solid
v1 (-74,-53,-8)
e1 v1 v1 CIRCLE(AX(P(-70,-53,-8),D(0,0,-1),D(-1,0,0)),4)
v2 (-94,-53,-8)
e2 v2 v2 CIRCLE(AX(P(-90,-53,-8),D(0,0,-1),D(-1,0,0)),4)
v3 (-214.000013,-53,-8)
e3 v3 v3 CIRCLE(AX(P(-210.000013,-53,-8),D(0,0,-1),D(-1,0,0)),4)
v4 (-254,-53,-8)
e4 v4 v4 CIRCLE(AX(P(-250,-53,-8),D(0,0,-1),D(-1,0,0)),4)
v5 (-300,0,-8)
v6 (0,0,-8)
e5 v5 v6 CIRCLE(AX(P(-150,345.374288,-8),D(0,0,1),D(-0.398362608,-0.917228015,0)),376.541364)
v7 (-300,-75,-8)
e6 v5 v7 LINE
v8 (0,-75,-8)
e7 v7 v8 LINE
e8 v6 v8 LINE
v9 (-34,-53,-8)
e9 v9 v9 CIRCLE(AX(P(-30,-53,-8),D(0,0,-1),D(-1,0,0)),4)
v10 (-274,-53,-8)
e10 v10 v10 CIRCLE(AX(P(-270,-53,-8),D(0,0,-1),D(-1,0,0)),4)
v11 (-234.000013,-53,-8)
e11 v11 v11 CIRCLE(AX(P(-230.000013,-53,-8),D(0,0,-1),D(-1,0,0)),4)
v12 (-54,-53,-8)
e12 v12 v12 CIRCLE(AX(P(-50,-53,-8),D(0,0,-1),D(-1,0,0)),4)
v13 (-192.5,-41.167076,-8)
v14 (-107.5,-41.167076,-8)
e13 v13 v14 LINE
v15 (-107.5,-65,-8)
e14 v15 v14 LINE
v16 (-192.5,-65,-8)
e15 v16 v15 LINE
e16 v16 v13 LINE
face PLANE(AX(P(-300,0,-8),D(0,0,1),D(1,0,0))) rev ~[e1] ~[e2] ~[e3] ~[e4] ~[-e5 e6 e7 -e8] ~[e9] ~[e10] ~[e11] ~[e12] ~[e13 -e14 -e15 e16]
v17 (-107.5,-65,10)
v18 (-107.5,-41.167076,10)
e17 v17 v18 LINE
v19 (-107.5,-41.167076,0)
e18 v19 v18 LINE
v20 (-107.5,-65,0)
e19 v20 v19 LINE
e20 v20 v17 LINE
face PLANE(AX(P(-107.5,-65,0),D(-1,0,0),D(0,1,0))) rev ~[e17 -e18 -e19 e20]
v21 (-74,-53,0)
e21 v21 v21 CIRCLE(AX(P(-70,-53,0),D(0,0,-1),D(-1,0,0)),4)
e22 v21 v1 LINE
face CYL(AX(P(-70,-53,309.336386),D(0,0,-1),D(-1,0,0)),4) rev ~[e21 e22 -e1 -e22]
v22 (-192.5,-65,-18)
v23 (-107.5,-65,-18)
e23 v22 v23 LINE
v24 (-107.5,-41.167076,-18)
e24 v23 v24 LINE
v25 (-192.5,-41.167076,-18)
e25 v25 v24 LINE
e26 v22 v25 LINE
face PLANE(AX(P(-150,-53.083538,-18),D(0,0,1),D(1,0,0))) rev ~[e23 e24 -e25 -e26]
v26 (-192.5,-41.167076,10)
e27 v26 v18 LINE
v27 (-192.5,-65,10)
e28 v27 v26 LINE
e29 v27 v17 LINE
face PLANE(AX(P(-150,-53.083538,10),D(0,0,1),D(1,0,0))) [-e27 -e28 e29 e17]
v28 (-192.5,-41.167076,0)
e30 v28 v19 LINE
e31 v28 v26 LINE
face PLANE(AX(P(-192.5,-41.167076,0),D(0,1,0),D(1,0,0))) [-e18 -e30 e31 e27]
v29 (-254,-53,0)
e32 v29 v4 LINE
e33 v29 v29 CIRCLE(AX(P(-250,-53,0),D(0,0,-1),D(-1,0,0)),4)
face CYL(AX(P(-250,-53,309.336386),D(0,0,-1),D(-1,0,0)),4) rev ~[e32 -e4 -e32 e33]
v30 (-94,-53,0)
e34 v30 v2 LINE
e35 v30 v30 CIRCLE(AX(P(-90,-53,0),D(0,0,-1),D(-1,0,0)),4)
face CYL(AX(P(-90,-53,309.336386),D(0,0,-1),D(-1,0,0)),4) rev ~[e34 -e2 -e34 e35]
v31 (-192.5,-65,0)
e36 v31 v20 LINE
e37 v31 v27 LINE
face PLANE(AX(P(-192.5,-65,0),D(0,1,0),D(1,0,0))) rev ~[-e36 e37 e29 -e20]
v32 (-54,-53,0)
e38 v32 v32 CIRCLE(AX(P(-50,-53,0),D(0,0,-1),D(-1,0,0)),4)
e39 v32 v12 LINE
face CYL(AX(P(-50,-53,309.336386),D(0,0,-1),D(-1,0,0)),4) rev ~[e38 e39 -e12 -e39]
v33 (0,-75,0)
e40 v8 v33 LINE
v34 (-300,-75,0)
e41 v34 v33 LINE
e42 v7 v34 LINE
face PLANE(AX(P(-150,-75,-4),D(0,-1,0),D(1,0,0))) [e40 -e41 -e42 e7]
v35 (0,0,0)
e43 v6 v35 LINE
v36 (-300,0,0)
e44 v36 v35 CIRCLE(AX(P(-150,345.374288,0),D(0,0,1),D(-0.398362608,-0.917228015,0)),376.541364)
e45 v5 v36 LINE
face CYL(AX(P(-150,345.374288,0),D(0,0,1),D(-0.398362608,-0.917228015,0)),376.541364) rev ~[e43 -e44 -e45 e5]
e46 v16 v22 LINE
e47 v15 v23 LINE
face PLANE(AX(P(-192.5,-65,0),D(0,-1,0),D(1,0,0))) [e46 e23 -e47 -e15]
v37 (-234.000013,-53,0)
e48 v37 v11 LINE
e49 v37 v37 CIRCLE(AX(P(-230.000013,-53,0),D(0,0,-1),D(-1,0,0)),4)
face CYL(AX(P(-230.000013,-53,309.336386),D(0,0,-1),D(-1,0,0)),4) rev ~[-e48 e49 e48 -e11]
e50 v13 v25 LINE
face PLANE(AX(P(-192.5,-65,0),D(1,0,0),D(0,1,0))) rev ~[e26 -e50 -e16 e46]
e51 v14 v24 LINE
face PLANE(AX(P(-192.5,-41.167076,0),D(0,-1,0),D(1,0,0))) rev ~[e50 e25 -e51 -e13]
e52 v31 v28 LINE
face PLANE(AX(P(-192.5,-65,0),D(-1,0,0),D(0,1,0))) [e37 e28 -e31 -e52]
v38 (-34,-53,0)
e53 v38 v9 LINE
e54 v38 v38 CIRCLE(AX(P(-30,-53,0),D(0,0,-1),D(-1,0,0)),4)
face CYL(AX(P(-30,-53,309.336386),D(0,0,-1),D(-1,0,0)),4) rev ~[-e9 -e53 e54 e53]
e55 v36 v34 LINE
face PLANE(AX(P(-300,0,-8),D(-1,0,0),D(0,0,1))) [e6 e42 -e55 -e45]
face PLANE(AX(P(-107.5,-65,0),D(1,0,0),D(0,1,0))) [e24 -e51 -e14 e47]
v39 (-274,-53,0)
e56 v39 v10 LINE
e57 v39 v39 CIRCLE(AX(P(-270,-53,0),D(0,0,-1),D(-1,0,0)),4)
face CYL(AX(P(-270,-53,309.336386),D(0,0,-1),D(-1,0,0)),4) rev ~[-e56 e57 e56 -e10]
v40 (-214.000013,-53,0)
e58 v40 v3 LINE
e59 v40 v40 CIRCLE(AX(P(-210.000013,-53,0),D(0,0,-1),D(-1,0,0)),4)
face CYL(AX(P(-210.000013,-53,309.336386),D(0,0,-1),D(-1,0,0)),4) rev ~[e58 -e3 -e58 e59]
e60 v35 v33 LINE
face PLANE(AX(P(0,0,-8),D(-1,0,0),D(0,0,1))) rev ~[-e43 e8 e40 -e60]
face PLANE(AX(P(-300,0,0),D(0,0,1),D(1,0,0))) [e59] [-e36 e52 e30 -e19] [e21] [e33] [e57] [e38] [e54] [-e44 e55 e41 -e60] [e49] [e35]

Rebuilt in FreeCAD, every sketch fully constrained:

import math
import FreeCAD as App
import Part
import Sketcher

V = App.Vector

doc = App.newDocument("Part")
params = doc.addObject("Spreadsheet::Sheet", "Params")
for row, (alias, value) in enumerate([
    ("sketch1_width", "300 mm"),
    ("sketch1_height", "8 mm"),
    ("pad1_length", "75 mm"),
    ("sketch2_width", "300 mm"),
    ("pocket1_length", "25 mm"),
    ("sketch3_diameter", "8 mm"),
    ("hole_diameter", "8 mm"),
    ("sketch4_width", "85 mm"),
    ("pad2_length", "10 mm"),
    ("pad2_length2", "18 mm"),
], start=1):
    params.set(f"A{row}", alias)
    params.set(f"B{row}", "=" + value)
    params.setAlias(f"B{row}", alias)

body = doc.addObject("PartDesign::Body", "Body")

# Sketch on XZ plane
sketch1 = body.newObject("Sketcher::SketchObject", "Sketch")
sketch1.AttachmentSupport = (doc.getObject("XZ_Plane"), [""])
sketch1.MapMode = "FlatFace"
sketch1.addGeometry([
    Part.LineSegment(V(-300, 0, 0), V(-300, -8, 0)),
    Part.LineSegment(V(-300, -8, 0), V(0, -8, 0)),
    Part.LineSegment(V(0, -8, 0), V(0, 0, 0)),
    Part.LineSegment(V(0, 0, 0), V(-300, 0, 0)),
], False)
sketch1.addConstraint([
    Sketcher.Constraint("Coincident", 0, 2, 1, 1),
    Sketcher.Constraint("Coincident", 1, 2, 2, 1),
    Sketcher.Constraint("Coincident", 2, 2, 3, 1),
    Sketcher.Constraint("Coincident", 3, 2, 0, 1),
    Sketcher.Constraint("Vertical", 0),
    Sketcher.Constraint("Horizontal", 1),
    Sketcher.Constraint("Vertical", 2),
    Sketcher.Constraint("Horizontal", 3),
    Sketcher.Constraint("Coincident", 2, 2, -1, 1),
    Sketcher.Constraint("DistanceX", 1, 1, 1, 2, 300.0),
    Sketcher.Constraint("DistanceY", 0, 2, 0, 1, 8.0),
])
sketch1.setExpression("Constraints[9]", "Params.sketch1_width")
sketch1.setExpression("Constraints[10]", "Params.sketch1_height")
pad1 = body.newObject("PartDesign::Pad", "Pad")
pad1.Profile = sketch1
pad1.setExpression("Length", "Params.pad1_length")

# Sketch on XY plane
sketch2 = body.newObject("Sketcher::SketchObject", "Sketch001")
sketch2.AttachmentSupport = (doc.getObject("XY_Plane"), [""])
sketch2.MapMode = "FlatFace"
sketch2.addGeometry([
    Part.LineSegment(V(0, 0, 0), V(-300, 0, 0)),
    Part.ArcOfCircle(Part.Circle(V(-150, 345.374288, 0), V(0, 0, 1), 376.541364), math.radians(-113.475857), math.radians(-66.524143)),
], False)
sketch2.addConstraint([
    Sketcher.Constraint("Coincident", 0, 1, 1, 2),
    Sketcher.Constraint("Coincident", 1, 1, 0, 2),
    Sketcher.Constraint("Horizontal", 0),
    Sketcher.Constraint("Coincident", 0, 1, -1, 1),
    Sketcher.Constraint("DistanceX", 0, 2, 0, 1, 300.0),
    Sketcher.Constraint("Radius", 1, 376.541364),
])
sketch2.setExpression("Constraints[4]", "Params.sketch2_width")
pocket1 = body.newObject("PartDesign::Pocket", "Pocket")
pocket1.Profile = sketch2
pocket1.setExpression("Length", "Params.pocket1_length")

# Sketch on XY plane
sketch3 = body.newObject("Sketcher::SketchObject", "Sketch002")
sketch3.AttachmentSupport = (doc.getObject("XY_Plane"), [""])
sketch3.MapMode = "FlatFace"
sketch3.addGeometry([
    Part.Circle(V(-270, -53, 0), V(0, 0, 1), 4),  # 0
    Part.Circle(V(-250, -53, 0), V(0, 0, 1), 4),  # 1
    Part.Circle(V(-230.000013, -53, 0), V(0, 0, 1), 4),  # 2
    Part.Circle(V(-210.000013, -53, 0), V(0, 0, 1), 4),  # 3
    Part.Circle(V(-90, -53, 0), V(0, 0, 1), 4),  # 4
    Part.Circle(V(-70, -53, 0), V(0, 0, 1), 4),  # 5
    Part.Circle(V(-50, -53, 0), V(0, 0, 1), 4),  # 6
    Part.Circle(V(-30, -53, 0), V(0, 0, 1), 4),  # 7
], False)
sketch3.addConstraint([
    Sketcher.Constraint("Equal", 0, 1),
    Sketcher.Constraint("Equal", 1, 2),
    Sketcher.Constraint("Equal", 2, 3),
    Sketcher.Constraint("Equal", 3, 4),
    Sketcher.Constraint("Equal", 4, 5),
    Sketcher.Constraint("Equal", 5, 6),
    Sketcher.Constraint("Equal", 6, 7),
    Sketcher.Constraint("Horizontal", 0, 3, 1, 3),
    Sketcher.Constraint("Horizontal", 1, 3, 2, 3),
    Sketcher.Constraint("Horizontal", 2, 3, 3, 3),
    Sketcher.Constraint("Horizontal", 3, 3, 4, 3),
    Sketcher.Constraint("Horizontal", 4, 3, 5, 3),
    Sketcher.Constraint("Horizontal", 5, 3, 6, 3),
    Sketcher.Constraint("Horizontal", 6, 3, 7, 3),
    Sketcher.Constraint("Diameter", 0, 8.0),
    Sketcher.Constraint("DistanceX", 0, 3, -1, 1, 270.0),
    Sketcher.Constraint("DistanceY", 0, 3, -1, 1, 53.0),
    Sketcher.Constraint("DistanceX", 1, 3, -1, 1, 250.0),
    Sketcher.Constraint("DistanceX", 4, 3, -1, 1, 90.0),
    Sketcher.Constraint("DistanceX", 5, 3, -1, 1, 70.0),
    Sketcher.Constraint("DistanceX", 6, 3, -1, 1, 50.0),
    Sketcher.Constraint("DistanceX", 7, 3, -1, 1, 30.0),
    Sketcher.Constraint("DistanceX", 2, 3, 3, 3, 20.0),
    Sketcher.Constraint("DistanceX", 2, 3, -1, 1, 230.000013),
])
sketch3.setExpression("Constraints[14]", "Params.sketch3_diameter")
doc.recompute()
hole = body.newObject("PartDesign::Hole", "Hole")
hole.Profile = sketch3
hole.ThreadType = "None"
hole.setExpression("Diameter", "Params.hole_diameter")
hole.DepthType = "ThroughAll"

# Sketch on XY plane
sketch4 = body.newObject("Sketcher::SketchObject", "Sketch003")
sketch4.AttachmentSupport = (doc.getObject("XY_Plane"), [""])
sketch4.MapMode = "FlatFace"
sketch4.addGeometry([
    Part.LineSegment(V(-192.5, -41.167076, 0), V(-192.5, -65, 0)),
    Part.LineSegment(V(-192.5, -65, 0), V(-107.5, -65, 0)),
    Part.LineSegment(V(-107.5, -65, 0), V(-107.5, -41.167076, 0)),
    Part.LineSegment(V(-107.5, -41.167076, 0), V(-192.5, -41.167076, 0)),
], False)
sketch4.addConstraint([
    Sketcher.Constraint("Coincident", 0, 2, 1, 1),
    Sketcher.Constraint("Coincident", 1, 2, 2, 1),
    Sketcher.Constraint("Coincident", 2, 2, 3, 1),
    Sketcher.Constraint("Coincident", 3, 2, 0, 1),
    Sketcher.Constraint("Vertical", 0),
    Sketcher.Constraint("Horizontal", 1),
    Sketcher.Constraint("Vertical", 2),
    Sketcher.Constraint("Horizontal", 3),
    Sketcher.Constraint("DistanceX", 1, 1, 1, 2, 85.0),
    Sketcher.Constraint("DistanceY", 0, 2, -1, 1, 65.0),
    Sketcher.Constraint("DistanceX", 0, 2, -1, 1, 192.5),
    Sketcher.Constraint("DistanceY", 0, 2, 0, 1, 23.832924),
])
sketch4.setExpression("Constraints[8]", "Params.sketch4_width")
pad2 = body.newObject("PartDesign::Pad", "Pad001")
pad2.Profile = sketch4
pad2.Type = "TwoLengths"
pad2.setExpression("Length", "Params.pad2_length")
pad2.setExpression("Length2", "Params.pad2_length2")

doc.recompute()
